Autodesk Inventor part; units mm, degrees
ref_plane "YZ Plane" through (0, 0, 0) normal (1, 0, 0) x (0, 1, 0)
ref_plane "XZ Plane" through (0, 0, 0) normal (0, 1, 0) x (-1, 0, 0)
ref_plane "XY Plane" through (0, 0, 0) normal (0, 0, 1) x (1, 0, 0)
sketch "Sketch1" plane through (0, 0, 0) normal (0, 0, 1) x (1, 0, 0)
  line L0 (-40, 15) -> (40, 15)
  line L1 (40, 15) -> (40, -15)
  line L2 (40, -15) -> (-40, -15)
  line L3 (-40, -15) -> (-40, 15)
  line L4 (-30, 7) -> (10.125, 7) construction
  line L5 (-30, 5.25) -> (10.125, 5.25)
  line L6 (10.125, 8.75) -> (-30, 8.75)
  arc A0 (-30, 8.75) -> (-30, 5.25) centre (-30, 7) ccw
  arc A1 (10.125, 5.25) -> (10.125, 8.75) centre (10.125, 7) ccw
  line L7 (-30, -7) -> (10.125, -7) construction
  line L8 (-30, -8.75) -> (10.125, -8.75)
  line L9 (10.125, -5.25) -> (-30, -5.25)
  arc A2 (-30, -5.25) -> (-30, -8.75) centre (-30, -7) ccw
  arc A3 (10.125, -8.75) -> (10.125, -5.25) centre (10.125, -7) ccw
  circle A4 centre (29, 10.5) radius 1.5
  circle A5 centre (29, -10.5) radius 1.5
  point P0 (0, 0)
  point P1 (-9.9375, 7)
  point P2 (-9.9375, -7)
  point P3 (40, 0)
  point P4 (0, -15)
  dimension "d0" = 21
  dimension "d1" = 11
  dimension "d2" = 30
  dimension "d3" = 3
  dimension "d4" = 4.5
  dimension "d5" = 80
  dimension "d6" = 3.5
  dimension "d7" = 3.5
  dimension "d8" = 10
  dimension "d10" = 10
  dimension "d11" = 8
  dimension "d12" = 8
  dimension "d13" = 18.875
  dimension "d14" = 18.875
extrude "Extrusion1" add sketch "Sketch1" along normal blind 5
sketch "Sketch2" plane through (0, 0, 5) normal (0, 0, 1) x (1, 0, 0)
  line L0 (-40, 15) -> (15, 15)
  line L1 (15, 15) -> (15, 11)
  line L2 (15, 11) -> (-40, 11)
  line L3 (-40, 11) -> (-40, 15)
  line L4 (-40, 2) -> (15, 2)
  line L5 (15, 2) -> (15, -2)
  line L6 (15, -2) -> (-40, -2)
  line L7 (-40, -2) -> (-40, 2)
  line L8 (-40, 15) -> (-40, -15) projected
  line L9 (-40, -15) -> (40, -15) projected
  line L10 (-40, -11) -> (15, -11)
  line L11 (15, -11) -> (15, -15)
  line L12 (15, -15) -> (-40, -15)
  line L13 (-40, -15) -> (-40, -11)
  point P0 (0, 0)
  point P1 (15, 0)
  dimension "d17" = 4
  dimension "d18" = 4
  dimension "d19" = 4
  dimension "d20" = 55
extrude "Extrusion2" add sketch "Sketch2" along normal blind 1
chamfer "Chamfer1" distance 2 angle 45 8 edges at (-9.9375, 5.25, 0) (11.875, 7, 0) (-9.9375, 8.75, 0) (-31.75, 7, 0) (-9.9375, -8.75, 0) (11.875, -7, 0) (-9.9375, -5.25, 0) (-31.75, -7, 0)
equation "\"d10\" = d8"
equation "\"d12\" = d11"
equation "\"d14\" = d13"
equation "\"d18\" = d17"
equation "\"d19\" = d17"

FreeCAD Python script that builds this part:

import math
import FreeCAD as App
import Part
import Sketcher
Q = App.Units.Quantity


def edges_at(feature, points):
    """Names of the edges that pass closest to the given points."""
    edges = feature.Shape.Edges
    near = lambda p: min(range(len(edges)), key=lambda i: edges[i].distToShape(Part.Vertex(*p))[0])
    return sorted({f"Edge{near(p) + 1}" for p in points})


def add_polygon(sketch, points):
    """Adds a closed chain of lines whose ends are joined by coincident constraints."""
    first, n = sketch.GeometryCount, len(points)
    for a, b in zip(points, points[1:] + points[:1]):
        sketch.addGeometry(Part.LineSegment(App.Vector(*a, 0), App.Vector(*b, 0)), False)
    for i in range(n):
        sketch.addConstraint(Sketcher.Constraint("Coincident", first + i, 2, first + (i + 1) % n, 1))

doc = App.newDocument("Part")
params = doc.addObject("Spreadsheet::Sheet", "Params")
for row, (alias, value) in enumerate([
    ("sketch1_diameter", "3 mm"),
    ("sketch1_width", "80 mm"),
    ("sketch1_height", "30 mm"),
    ("sketch1_radius", "1.75 mm"),
    ("pad1_length", "5 mm"),
    ("sketch2_width", "55 mm"),
    ("sketch2_height", "4 mm"),
    ("pad2_length", "1 mm"),
    ("chamfer_size", "2 mm"),
], start=1):
    params.set(f"A{row}", alias)
    params.set(f"B{row}", "=" + value)
    params.setAlias(f"B{row}", alias)

body = doc.addObject("PartDesign::Body", "Body")

# Sketch on XY plane
sketch1 = body.newObject("Sketcher::SketchObject", "Sketch")
sketch1.AttachmentSupport = (doc.getObject("XY_Plane"), [""])
sketch1.MapMode = "FlatFace"
add_polygon(sketch1, [(40, 15), (-40, 15), (-40, -15), (40, -15)])  # lines 0-3
sketch1.addGeometry(Part.LineSegment(App.Vector(10.125, -8.75, 0), App.Vector(-30, -8.75, 0)), False)  # 4
sketch1.addGeometry(Part.ArcOfCircle(Part.Circle(App.Vector(-30, -7, 0), App.Vector(0, 0, 1), 1.75), math.radians(90), math.radians(270)), False)  # 5
sketch1.addGeometry(Part.LineSegment(App.Vector(-30, -5.25, 0), App.Vector(10.125, -5.25, 0)), False)  # 6
sketch1.addGeometry(Part.ArcOfCircle(Part.Circle(App.Vector(10.125, -7, 0), App.Vector(0, 0, 1), 1.75), math.radians(-90), math.radians(90)), False)  # 7
sketch1.addGeometry(Part.Circle(App.Vector(29, -10.5, 0), App.Vector(0, 0, 1), 1.5), False)  # 8
sketch1.addGeometry(Part.LineSegment(App.Vector(10.125, 5.25, 0), App.Vector(-30, 5.25, 0)), False)  # 9
sketch1.addGeometry(Part.ArcOfCircle(Part.Circle(App.Vector(-30, 7, 0), App.Vector(0, 0, 1), 1.75), math.radians(90), math.radians(270)), False)  # 10
sketch1.addGeometry(Part.LineSegment(App.Vector(-30, 8.75, 0), App.Vector(10.125, 8.75, 0)), False)  # 11
sketch1.addGeometry(Part.ArcOfCircle(Part.Circle(App.Vector(10.125, 7, 0), App.Vector(0, 0, 1), 1.75), math.radians(-90), math.radians(90)), False)  # 12
sketch1.addGeometry(Part.Circle(App.Vector(29, 10.5, 0), App.Vector(0, 0, 1), 1.5), False)  # 13
sketch1.addConstraint([
    Sketcher.Constraint("Tangent", 4, 2, 5, 2),
    Sketcher.Constraint("Tangent", 5, 1, 6, 1),
    Sketcher.Constraint("Tangent", 6, 2, 7, 2),
    Sketcher.Constraint("Tangent", 7, 1, 4, 1),
    Sketcher.Constraint("Tangent", 9, 2, 10, 2),
    Sketcher.Constraint("Tangent", 10, 1, 11, 1),
    Sketcher.Constraint("Tangent", 11, 2, 12, 2),
    Sketcher.Constraint("Tangent", 12, 1, 9, 1),
    Sketcher.Constraint("Horizontal", 0),
    Sketcher.Constraint("Vertical", 1),
    Sketcher.Constraint("Horizontal", 2),
    Sketcher.Constraint("Vertical", 3),
    Sketcher.Constraint("Horizontal", 4),
    Sketcher.Constraint("Horizontal", 6),
    Sketcher.Constraint("Horizontal", 9),
    Sketcher.Constraint("Horizontal", 11),
    Sketcher.Constraint("Equal", 7, 10),
    Sketcher.Constraint("Equal", 8, 13),
    Sketcher.Constraint("Symmetric", 0, 2, 2, 2, -1, 1),
    Sketcher.Constraint("Symmetric", 5, 3, 10, 3, -1),
    Sketcher.Constraint("Symmetric", 8, 3, 13, 3, -1),
    Sketcher.Constraint("Vertical", 7, 3, 12, 3),
    Sketcher.Constraint("Diameter", 8, Q("3 mm")),
    Sketcher.Constraint("DistanceX", 0, 2, 0, 1, Q("80 mm")),
    Sketcher.Constraint("DistanceY", 1, 2, 1, 1, Q("30 mm")),
    Sketcher.Constraint("Radius", 5, Q("1.75 mm")),
    Sketcher.Constraint("DistanceX", 5, 3, -1, 1, Q("30 mm")),
    Sketcher.Constraint("DistanceY", 8, 3, 13, 3, Q("21 mm")),
    Sketcher.Constraint("DistanceY", 10, 3, 0, 2, Q("8 mm")),
    Sketcher.Constraint("DistanceX", 8, 3, 2, 2, Q("11 mm")),
    Sketcher.Constraint("DistanceX", 7, 3, 8, 3, Q("18.875 mm")),
])
sketch1.setExpression("Constraints[26]", "Params.sketch1_diameter")
sketch1.setExpression("Constraints[27]", "Params.sketch1_width")
sketch1.setExpression("Constraints[28]", "Params.sketch1_height")
sketch1.setExpression("Constraints[29]", "Params.sketch1_radius")
pad1 = body.newObject("PartDesign::Pad", "Pad")
pad1.Profile = sketch1
pad1.setExpression("Length", "Params.pad1_length")

# Sketch on XY plane
sketch2 = body.newObject("Sketcher::SketchObject", "Sketch001")
sketch2.AttachmentSupport = (doc.getObject("XY_Plane"), [""])
sketch2.MapMode = "FlatFace"
sketch2.AttachmentOffset = App.Placement(App.Vector(0, 0, 5), App.Rotation())
add_polygon(sketch2, [(15, -11), (-40, -11), (-40, -15), (15, -15)])  # lines 0-3
add_polygon(sketch2, [(15, 2), (-40, 2), (-40, -2), (15, -2)])  # lines 4-7
add_polygon(sketch2, [(15, 15), (-40, 15), (-40, 11), (15, 11)])  # lines 8-11
sketch2.addConstraint([
    Sketcher.Constraint("Horizontal", 0),
    Sketcher.Constraint("Vertical", 1),
    Sketcher.Constraint("Horizontal", 2),
    Sketcher.Constraint("Vertical", 3),
    Sketcher.Constraint("Horizontal", 4),
    Sketcher.Constraint("Vertical", 5),
    Sketcher.Constraint("Horizontal", 6),
    Sketcher.Constraint("Vertical", 7),
    Sketcher.Constraint("Horizontal", 8),
    Sketcher.Constraint("Vertical", 9),
    Sketcher.Constraint("Horizontal", 10),
    Sketcher.Constraint("Vertical", 11),
    Sketcher.Constraint("Symmetric", 1, 2, 8, 2, -1),
    Sketcher.Constraint("Symmetric", 3, 2, 10, 2, -1),
    Sketcher.Constraint("Vertical", 1, 2, 4, 2),
    Sketcher.Constraint("Vertical", 3, 2, 6, 2),
    Sketcher.Constraint("Equal", 3, 5),
    Sketcher.Constraint("DistanceX", 0, 2, 0, 1, Q("55 mm")),
    Sketcher.Constraint("DistanceY", 1, 2, 1, 1, Q("4 mm")),
    Sketcher.Constraint("DistanceX", 0, 2, -1, 1, Q("40 mm")),
    Sketcher.Constraint("DistanceY", 0, 2, -1, 1, Q("11 mm")),
    Sketcher.Constraint("DistanceY", -1, 1, 4, 2, Q("2 mm")),
])
sketch2.setExpression("Constraints[29]", "Params.sketch2_width")
sketch2.setExpression("Constraints[30]", "Params.sketch2_height")
pad2 = body.newObject("PartDesign::Pad", "Pad001")
pad2.Profile = sketch2
pad2.setExpression("Length", "Params.pad2_length")
doc.recompute()

chamfer = body.newObject("PartDesign::Chamfer", "Chamfer")
chamfer.Base = (pad2, edges_at(pad2, [
    (-9.938, 5.25, 0),
    (11.875, 7, 0),
    (-9.938, 8.75, 0),
    (-31.75, 7, 0),
    (-9.938, -8.75, 0),
    (11.875, -7, 0),
    (-9.938, -5.25, 0),
    (-31.75, -7, 0),
]))
chamfer.setExpression("Size", "Params.chamfer_size")

doc.recompute()
